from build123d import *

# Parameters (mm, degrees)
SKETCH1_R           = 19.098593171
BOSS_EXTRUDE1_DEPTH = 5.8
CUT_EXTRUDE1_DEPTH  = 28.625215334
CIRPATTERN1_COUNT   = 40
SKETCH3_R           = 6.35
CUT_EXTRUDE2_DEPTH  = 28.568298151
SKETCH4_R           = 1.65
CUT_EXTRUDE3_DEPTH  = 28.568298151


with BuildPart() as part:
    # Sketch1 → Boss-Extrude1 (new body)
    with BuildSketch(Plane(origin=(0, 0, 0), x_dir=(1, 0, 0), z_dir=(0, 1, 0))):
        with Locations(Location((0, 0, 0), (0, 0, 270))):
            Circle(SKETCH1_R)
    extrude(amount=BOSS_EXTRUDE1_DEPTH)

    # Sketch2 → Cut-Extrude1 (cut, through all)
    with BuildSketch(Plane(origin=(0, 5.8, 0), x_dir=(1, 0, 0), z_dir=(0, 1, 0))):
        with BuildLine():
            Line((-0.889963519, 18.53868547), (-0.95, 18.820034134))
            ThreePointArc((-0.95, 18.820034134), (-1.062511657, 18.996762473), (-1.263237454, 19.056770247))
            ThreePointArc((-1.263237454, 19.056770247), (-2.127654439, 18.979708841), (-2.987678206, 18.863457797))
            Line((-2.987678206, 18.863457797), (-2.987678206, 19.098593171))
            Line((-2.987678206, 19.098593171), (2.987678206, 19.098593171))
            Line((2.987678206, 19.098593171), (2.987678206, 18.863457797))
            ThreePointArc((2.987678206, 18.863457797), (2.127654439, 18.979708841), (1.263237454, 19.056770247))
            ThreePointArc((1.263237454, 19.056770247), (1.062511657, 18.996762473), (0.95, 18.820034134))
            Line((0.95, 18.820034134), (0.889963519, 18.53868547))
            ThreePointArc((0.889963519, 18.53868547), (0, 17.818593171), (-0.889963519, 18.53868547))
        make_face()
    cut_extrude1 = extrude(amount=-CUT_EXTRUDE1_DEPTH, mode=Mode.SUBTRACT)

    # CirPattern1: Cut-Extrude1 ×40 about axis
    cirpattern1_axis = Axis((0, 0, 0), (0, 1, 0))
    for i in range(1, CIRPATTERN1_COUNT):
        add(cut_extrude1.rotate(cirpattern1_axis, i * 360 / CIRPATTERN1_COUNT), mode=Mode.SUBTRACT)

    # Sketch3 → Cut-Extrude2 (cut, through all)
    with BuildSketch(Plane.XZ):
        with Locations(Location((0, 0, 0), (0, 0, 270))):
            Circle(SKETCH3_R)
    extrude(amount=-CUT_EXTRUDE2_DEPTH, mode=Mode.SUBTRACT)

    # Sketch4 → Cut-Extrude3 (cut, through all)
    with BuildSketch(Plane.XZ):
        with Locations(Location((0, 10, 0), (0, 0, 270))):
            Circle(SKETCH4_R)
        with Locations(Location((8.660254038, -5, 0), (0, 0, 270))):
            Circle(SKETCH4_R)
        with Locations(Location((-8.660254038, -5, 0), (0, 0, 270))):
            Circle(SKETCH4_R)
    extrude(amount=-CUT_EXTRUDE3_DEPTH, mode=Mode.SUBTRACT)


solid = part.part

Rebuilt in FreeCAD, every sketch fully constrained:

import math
import FreeCAD as App
import Part
import Sketcher

V = App.Vector
Q = App.Units.Quantity

doc = App.newDocument("Part")
body = doc.addObject("PartDesign::Body", "Body")

sketch1 = body.newObject("Sketcher::SketchObject", "Sketch")
sketch1.AttachmentSupport = (doc.getObject("XZ_Plane"), [""])
sketch1.MapMode = "FlatFace"
sketch1.addGeometry(Part.Circle(V(0, 0, 0), V(0, 0, 1), 19), False)
sketch1.addConstraint([
    Sketcher.Constraint("Coincident", 0, 3, -1, 1),
    Sketcher.Constraint("Diameter", 0, Q("38.197186 mm")),
])
pad1 = body.newObject("PartDesign::Pad", "Pad")
pad1.Profile = sketch1
pad1.Length = 5.8
pad1.Reversed = True

sketch2 = body.newObject("Sketcher::SketchObject", "Sketch001")
sketch2.AttachmentSupport = (doc.getObject("XZ_Plane"), [""])
sketch2.MapMode = "FlatFace"
sketch2.AttachmentOffset = App.Placement(V(0, 0, -5.8), App.Rotation())
sketch2.addGeometry([
    Part.LineSegment(V(-0.95, -18.82, 0), V(-0.89, -18.54, 0)),
    Part.ArcOfCircle(Part.Circle(V(0, -18.73, 0), V(0, 0, 1), 0.91), math.radians(12), math.radians(168)),
    Part.LineSegment(V(0.89, -18.54, 0), V(0.95, -18.82, 0)),
    Part.ArcOfCircle(Part.Circle(V(1.24, -18.76, 0), V(0, 0, 1), 0.3), math.radians(-168), math.radians(-86)),
    Part.ArcOfCircle(Part.Circle(V(0, 0, 0), V(0, 0, 1), 19.1), math.radians(-86.21), math.radians(-81)),
    Part.LineSegment(V(2.99, -18.86, 0), V(2.99, -19.1, 0)),
    Part.LineSegment(V(2.99, -19.1, 0), V(-2.99, -19.1, 0)),
    Part.LineSegment(V(-2.99, -19.1, 0), V(-2.99, -18.86, 0)),
    Part.ArcOfCircle(Part.Circle(V(0, 0, 0), V(0, 0, 1), 19.1), math.radians(-99), math.radians(-93.79)),
    Part.ArcOfCircle(Part.Circle(V(-1.24, -18.76, 0), V(0, 0, 1), 0.3), math.radians(-94), math.radians(-12)),
], False)
sketch2.addConstraint([
    Sketcher.Constraint("Tangent", 0, 2, 1, 2),
    Sketcher.Constraint("Tangent", 1, 1, 2, 1),
    Sketcher.Constraint("Tangent", 2, 2, 3, 1),
    Sketcher.Constraint("Tangent", 3, 2, 4, 1),
    Sketcher.Constraint("Coincident", 4, 2, 5, 1),
    Sketcher.Constraint("Coincident", 5, 2, 6, 1),
    Sketcher.Constraint("Coincident", 6, 2, 7, 1),
    Sketcher.Constraint("Coincident", 7, 2, 8, 1),
    Sketcher.Constraint("Tangent", 8, 2, 9, 1),
    Sketcher.Constraint("Tangent", 9, 2, 0, 1),
    Sketcher.Constraint("Vertical", 5),
    Sketcher.Constraint("Horizontal", 6),
    Sketcher.Constraint("Vertical", 7),
    Sketcher.Constraint("Coincident", 4, 3, -1, 1),
    Sketcher.Constraint("Coincident", 8, 3, -1, 1),
    Sketcher.Constraint("Equal", 4, 8),
    Sketcher.Constraint("Equal", 3, 9),
    Sketcher.Constraint("Symmetric", 0, 2, 1, 1, -2),
    Sketcher.Constraint("Horizontal", 4, 2, 7, 2),
    Sketcher.Constraint("Radius", 3, Q("0.3 mm")),
    Sketcher.Constraint("Radius", 1, Q("0.91 mm")),
    Sketcher.Constraint("DistanceX", -1, 1, 2, 2, Q("0.95 mm")),
    Sketcher.Constraint("DistanceY", 6, 2, 1, 3, Q("0.37 mm")),
    Sketcher.Constraint("Radius", 4, Q("19.098594 mm")),
    Sketcher.Constraint("DistanceX", 0, 2, 3, 2, Q("2.153201 mm")),
    Sketcher.Constraint("DistanceX", 6, 2, 6, 1, Q("5.975356 mm")),
])
pocket1 = body.newObject("PartDesign::Pocket", "Pocket")
pocket1.Profile = sketch2
pocket1.Type = "ThroughAll"
pocket1.Reversed = True
doc.recompute()

polarpattern = body.newObject("PartDesign::PolarPattern", "PolarPattern")
polarpattern.Originals = [pocket1]
polarpattern.Axis = (doc.getObject("Y_Axis"), [""])
polarpattern.Angle = 360
polarpattern.Occurrences = 40
body.Tip = polarpattern

sketch3 = body.newObject("Sketcher::SketchObject", "Sketch002")
sketch3.AttachmentSupport = (doc.getObject("XZ_Plane"), [""])
sketch3.MapMode = "FlatFace"
sketch3.addGeometry(Part.Circle(V(0, 0, 0), V(0, 0, 1), 6), False)
sketch3.addConstraint([
    Sketcher.Constraint("Coincident", 0, 3, -1, 1),
    Sketcher.Constraint("Diameter", 0, Q("12.7 mm")),
])
pocket2 = body.newObject("PartDesign::Pocket", "Pocket001")
pocket2.Profile = sketch3
pocket2.Type = "ThroughAll"

sketch4 = body.newObject("Sketcher::SketchObject", "Sketch003")
sketch4.AttachmentSupport = (doc.getObject("XZ_Plane"), [""])
sketch4.MapMode = "FlatFace"
sketch4.addGeometry([
    Part.Circle(V(0, 10, 0), V(0, 0, 1), 1.6),
    Part.Circle(V(8.7, -5, 0), V(0, 0, 1), 1.6),
    Part.Circle(V(-8.7, -5, 0), V(0, 0, 1), 1.6),
], False)
sketch4.addConstraint([
    Sketcher.Constraint("Equal", 0, 1),
    Sketcher.Constraint("Equal", 1, 2),
    Sketcher.Constraint("Symmetric", 1, 3, 2, 3, -2),
    Sketcher.Constraint("PointOnObject", 0, 3, -2),
    Sketcher.Constraint("Diameter", 0, Q("3.3 mm")),
    Sketcher.Constraint("DistanceY", -1, 1, 0, 3, Q("10 mm")),
    Sketcher.Constraint("DistanceY", 1, 3, -1, 1, Q("5 mm")),
    Sketcher.Constraint("DistanceX", 2, 3, 1, 3, Q("17.320508 mm")),
])
pocket3 = body.newObject("PartDesign::Pocket", "Pocket002")
pocket3.Profile = sketch4
pocket3.Type = "ThroughAll"

doc.recompute()
